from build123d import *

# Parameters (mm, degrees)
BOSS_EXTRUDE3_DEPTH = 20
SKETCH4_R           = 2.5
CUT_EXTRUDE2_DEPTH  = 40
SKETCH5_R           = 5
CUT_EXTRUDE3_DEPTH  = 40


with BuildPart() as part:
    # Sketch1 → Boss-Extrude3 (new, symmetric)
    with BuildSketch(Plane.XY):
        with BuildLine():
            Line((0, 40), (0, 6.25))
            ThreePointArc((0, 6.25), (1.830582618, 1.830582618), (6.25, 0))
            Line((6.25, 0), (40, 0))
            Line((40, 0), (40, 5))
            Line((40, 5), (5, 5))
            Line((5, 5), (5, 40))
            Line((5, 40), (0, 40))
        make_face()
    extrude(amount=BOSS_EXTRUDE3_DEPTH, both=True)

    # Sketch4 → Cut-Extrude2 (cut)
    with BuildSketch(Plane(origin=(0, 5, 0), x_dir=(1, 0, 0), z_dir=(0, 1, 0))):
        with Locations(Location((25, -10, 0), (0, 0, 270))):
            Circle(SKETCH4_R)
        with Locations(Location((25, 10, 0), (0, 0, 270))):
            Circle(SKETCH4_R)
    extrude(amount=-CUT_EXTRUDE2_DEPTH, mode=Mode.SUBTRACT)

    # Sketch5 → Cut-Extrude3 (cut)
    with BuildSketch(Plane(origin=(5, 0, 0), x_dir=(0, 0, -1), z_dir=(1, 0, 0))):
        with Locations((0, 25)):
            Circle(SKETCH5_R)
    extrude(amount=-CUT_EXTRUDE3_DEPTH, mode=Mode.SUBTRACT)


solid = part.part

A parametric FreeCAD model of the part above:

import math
import FreeCAD as App
import Part
import Sketcher

V = App.Vector

doc = App.newDocument("Part")
params = doc.addObject("Spreadsheet::Sheet", "Params")
for row, (alias, value) in enumerate([
    ("sketch1_width", "35 mm"),
    ("sketch1_width2", "5 mm"),
    ("sketch1_radius", "6.25 mm"),
    ("pad1_length", "40 mm"),
    ("sketch2_diameter", "5 mm"),
    ("pocket1_length", "40 mm"),
    ("sketch3_diameter", "10 mm"),
    ("pocket2_length", "40 mm"),
], start=1):
    params.set(f"A{row}", alias)
    params.set(f"B{row}", "=" + value)
    params.setAlias(f"B{row}", alias)

body = doc.addObject("PartDesign::Body", "Body")

# Sketch on XY plane
sketch1 = doc.addObject("Sketcher::SketchObject", "Sketch")
body.addObject(sketch1)
sketch1.AttachmentSupport = (doc.XY_Plane, [""])
sketch1.MapMode = "FlatFace"
sketch1.addGeometry(Part.LineSegment(V(0, 40, 0), V(0, 6, 0)), False)
sketch1.addGeometry(Part.ArcOfCircle(Part.Circle(V(6, 6, 0), V(0, 0, 1), 6), math.radians(-180), math.radians(-90)), False)
sketch1.addGeometry(Part.LineSegment(V(6, 0, 0), V(40, 0, 0)), False)
sketch1.addGeometry(Part.LineSegment(V(40, 0, 0), V(40, 5, 0)), False)
sketch1.addGeometry(Part.LineSegment(V(40, 5, 0), V(5, 5, 0)), False)
sketch1.addGeometry(Part.LineSegment(V(5, 5, 0), V(5, 40, 0)), False)
sketch1.addGeometry(Part.LineSegment(V(5, 40, 0), V(0, 40, 0)), False)
sketch1.addConstraint(Sketcher.Constraint("Tangent", 0, 2, 1, 1))
sketch1.addConstraint(Sketcher.Constraint("Tangent", 1, 2, 2, 1))
sketch1.addConstraint(Sketcher.Constraint("Coincident", 2, 2, 3, 1))
sketch1.addConstraint(Sketcher.Constraint("Coincident", 3, 2, 4, 1))
sketch1.addConstraint(Sketcher.Constraint("Coincident", 4, 2, 5, 1))
sketch1.addConstraint(Sketcher.Constraint("Coincident", 5, 2, 6, 1))
sketch1.addConstraint(Sketcher.Constraint("Coincident", 6, 2, 0, 1))
sketch1.addConstraint(Sketcher.Constraint("Vertical", 0))
sketch1.addConstraint(Sketcher.Constraint("Horizontal", 2))
sketch1.addConstraint(Sketcher.Constraint("Vertical", 3))
sketch1.addConstraint(Sketcher.Constraint("Horizontal", 4))
sketch1.addConstraint(Sketcher.Constraint("Vertical", 5))
sketch1.addConstraint(Sketcher.Constraint("Horizontal", 6))
sketch1.addConstraint(Sketcher.Constraint("PointOnObject", 0, 2, -2))
sketch1.addConstraint(Sketcher.Constraint("PointOnObject", 1, 2, -1))
sketch1.addConstraint(Sketcher.Constraint("Equal", 2, 0))
sketch1.addConstraint(Sketcher.Constraint("Equal", 6, 3))
sketch1.addConstraint(Sketcher.Constraint("DistanceX", 4, 2, 4, 1, 35.0))
sketch1.addConstraint(Sketcher.Constraint("DistanceX", 6, 2, 6, 1, 5.0))
sketch1.addConstraint(Sketcher.Constraint("Radius", 1, 6.25))
sketch1.setExpression("Constraints[17]", "Params.sketch1_width")
sketch1.setExpression("Constraints[18]", "Params.sketch1_width2")
sketch1.setExpression("Constraints[19]", "Params.sketch1_radius")
pad1 = doc.addObject("PartDesign::Pad", "Pad")
body.addObject(pad1)
pad1.Profile = sketch1
pad1.setExpression("Length", "Params.pad1_length")
pad1.Midplane = True

# Sketch on XZ plane
sketch2 = doc.addObject("Sketcher::SketchObject", "Sketch001")
body.addObject(sketch2)
sketch2.AttachmentSupport = (doc.XZ_Plane, [""])
sketch2.MapMode = "FlatFace"
sketch2.AttachmentOffset = App.Placement(V(0, 0, -5), App.Rotation())
sketch2.addGeometry(Part.Circle(V(25, 10, 0), V(0, 0, 1), 2.5), False)
sketch2.addGeometry(Part.Circle(V(25, -10, 0), V(0, 0, 1), 2.5), False)
sketch2.addConstraint(Sketcher.Constraint("Equal", 0, 1))
sketch2.addConstraint(Sketcher.Constraint("Symmetric", 0, 3, 1, 3, -1))
sketch2.addConstraint(Sketcher.Constraint("Diameter", 0, 5.0))
sketch2.addConstraint(Sketcher.Constraint("DistanceX", -1, 1, 0, 3, 25.0))
sketch2.addConstraint(Sketcher.Constraint("DistanceY", -1, 1, 0, 3, 10.0))
sketch2.setExpression("Constraints[2]", "Params.sketch2_diameter")
pocket1 = doc.addObject("PartDesign::Pocket", "Pocket")
body.addObject(pocket1)
pocket1.Profile = sketch2
pocket1.setExpression("Length", "Params.pocket1_length")
pocket1.Reversed = True

# Sketch on YZ plane
sketch3 = doc.addObject("Sketcher::SketchObject", "Sketch002")
body.addObject(sketch3)
sketch3.AttachmentSupport = (doc.YZ_Plane, [""])
sketch3.MapMode = "FlatFace"
sketch3.AttachmentOffset = App.Placement(V(0, 0, 5), App.Rotation())
sketch3.addGeometry(Part.Circle(V(25, 0, 0), V(0, 0, 1), 5), False)
sketch3.addConstraint(Sketcher.Constraint("PointOnObject", 0, 3, -1))
sketch3.addConstraint(Sketcher.Constraint("Diameter", 0, 10.0))
sketch3.addConstraint(Sketcher.Constraint("DistanceX", -1, 1, 0, 3, 25.0))
sketch3.setExpression("Constraints[1]", "Params.sketch3_diameter")
pocket2 = doc.addObject("PartDesign::Pocket", "Pocket001")
body.addObject(pocket2)
pocket2.Profile = sketch3
pocket2.setExpression("Length", "Params.pocket2_length")

doc.recompute()
